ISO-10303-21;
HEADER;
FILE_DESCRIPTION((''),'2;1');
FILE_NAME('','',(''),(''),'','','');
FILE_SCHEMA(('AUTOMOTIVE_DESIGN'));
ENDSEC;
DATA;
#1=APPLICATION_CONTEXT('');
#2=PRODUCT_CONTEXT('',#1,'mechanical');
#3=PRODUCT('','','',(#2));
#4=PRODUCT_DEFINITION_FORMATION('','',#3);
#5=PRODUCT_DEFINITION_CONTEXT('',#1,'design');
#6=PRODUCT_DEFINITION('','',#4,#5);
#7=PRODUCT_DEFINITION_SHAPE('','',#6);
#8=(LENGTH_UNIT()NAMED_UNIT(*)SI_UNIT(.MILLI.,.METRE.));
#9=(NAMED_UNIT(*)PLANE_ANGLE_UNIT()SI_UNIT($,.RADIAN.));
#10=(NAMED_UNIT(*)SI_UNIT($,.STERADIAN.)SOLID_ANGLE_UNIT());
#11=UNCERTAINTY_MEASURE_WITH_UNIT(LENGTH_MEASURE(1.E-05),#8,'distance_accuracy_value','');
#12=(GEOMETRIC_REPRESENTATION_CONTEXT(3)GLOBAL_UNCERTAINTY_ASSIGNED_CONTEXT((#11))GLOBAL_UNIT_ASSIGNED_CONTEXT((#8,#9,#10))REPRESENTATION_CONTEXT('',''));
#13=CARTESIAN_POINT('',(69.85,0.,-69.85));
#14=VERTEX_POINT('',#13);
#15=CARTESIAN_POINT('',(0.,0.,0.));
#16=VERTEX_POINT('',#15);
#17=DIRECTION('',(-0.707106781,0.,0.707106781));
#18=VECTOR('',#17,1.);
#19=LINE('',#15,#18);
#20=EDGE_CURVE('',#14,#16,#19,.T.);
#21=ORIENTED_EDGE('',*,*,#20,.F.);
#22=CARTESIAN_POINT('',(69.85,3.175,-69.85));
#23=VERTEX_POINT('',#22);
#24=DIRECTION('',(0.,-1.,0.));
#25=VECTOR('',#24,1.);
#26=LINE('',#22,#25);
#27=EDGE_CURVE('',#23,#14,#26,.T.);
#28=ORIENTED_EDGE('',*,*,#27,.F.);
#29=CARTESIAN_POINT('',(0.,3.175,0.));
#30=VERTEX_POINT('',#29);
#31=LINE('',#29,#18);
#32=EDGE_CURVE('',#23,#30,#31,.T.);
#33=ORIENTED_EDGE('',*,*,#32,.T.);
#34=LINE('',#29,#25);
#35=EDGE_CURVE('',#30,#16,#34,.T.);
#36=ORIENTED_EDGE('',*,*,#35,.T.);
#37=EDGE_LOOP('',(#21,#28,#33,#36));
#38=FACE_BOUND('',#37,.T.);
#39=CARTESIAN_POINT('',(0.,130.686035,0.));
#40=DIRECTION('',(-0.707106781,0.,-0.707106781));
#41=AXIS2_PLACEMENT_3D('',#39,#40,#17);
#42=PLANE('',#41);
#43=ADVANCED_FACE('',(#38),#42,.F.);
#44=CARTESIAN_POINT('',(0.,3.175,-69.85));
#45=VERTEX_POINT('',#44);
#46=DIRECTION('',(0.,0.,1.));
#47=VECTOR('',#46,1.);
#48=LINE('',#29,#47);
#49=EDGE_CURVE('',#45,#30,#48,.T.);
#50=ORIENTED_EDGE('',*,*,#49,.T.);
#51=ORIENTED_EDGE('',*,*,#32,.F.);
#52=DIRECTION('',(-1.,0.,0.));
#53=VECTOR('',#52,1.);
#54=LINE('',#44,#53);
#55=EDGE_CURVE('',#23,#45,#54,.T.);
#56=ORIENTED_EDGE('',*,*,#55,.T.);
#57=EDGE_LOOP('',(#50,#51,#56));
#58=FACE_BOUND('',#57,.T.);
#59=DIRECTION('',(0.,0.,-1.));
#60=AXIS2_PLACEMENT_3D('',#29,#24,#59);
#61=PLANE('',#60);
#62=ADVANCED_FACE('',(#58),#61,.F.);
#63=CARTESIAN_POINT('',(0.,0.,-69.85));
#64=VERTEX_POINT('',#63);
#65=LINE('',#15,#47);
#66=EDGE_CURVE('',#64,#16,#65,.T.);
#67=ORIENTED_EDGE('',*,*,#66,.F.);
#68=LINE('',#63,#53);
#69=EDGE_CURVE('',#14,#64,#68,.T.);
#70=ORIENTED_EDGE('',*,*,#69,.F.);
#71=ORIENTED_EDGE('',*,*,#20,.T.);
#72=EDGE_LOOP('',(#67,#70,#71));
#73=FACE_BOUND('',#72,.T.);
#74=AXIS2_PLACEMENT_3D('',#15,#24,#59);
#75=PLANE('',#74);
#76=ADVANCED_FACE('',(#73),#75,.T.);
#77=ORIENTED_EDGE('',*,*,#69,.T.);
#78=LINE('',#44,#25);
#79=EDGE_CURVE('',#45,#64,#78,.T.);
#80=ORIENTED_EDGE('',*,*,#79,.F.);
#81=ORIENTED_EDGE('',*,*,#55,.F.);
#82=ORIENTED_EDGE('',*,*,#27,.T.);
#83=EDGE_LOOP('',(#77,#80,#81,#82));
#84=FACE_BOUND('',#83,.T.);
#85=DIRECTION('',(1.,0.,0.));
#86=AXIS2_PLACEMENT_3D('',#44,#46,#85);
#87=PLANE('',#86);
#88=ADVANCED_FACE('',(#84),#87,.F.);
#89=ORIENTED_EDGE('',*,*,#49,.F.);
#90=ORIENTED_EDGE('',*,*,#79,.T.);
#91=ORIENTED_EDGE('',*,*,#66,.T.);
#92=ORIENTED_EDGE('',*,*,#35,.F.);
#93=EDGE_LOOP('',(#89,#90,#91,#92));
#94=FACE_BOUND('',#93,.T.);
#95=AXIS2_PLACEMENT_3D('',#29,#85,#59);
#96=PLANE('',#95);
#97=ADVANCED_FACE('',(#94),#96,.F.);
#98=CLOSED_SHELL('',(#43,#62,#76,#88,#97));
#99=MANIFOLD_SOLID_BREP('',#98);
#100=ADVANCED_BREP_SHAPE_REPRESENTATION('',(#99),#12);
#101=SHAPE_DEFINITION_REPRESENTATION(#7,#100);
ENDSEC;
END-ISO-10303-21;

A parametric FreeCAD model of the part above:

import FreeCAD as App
import Part
import Sketcher

V = App.Vector
Q = App.Units.Quantity

doc = App.newDocument("Part")
body = doc.addObject("PartDesign::Body", "Body")

sketch1 = body.newObject("Sketcher::SketchObject", "Sketch")
sketch1.AttachmentSupport = (doc.getObject("XZ_Plane"), [""])
sketch1.MapMode = "FlatFace"
sketch1.addGeometry(Part.LineSegment(V(0, -70, 0), V(0, 0, 0)), False)
sketch1.addGeometry(Part.LineSegment(V(0, 0, 0), V(70, 0, 0)), False)
sketch1.addGeometry(Part.LineSegment(V(70, 0, 0), V(70, -70, 0)), False)
sketch1.addGeometry(Part.LineSegment(V(70, -70, 0), V(0, -70, 0)), False)
sketch1.addConstraint(Sketcher.Constraint("Coincident", 0, 2, 1, 1))
sketch1.addConstraint(Sketcher.Constraint("Coincident", 1, 2, 2, 1))
sketch1.addConstraint(Sketcher.Constraint("Coincident", 2, 2, 3, 1))
sketch1.addConstraint(Sketcher.Constraint("Coincident", 3, 2, 0, 1))
sketch1.addConstraint(Sketcher.Constraint("Vertical", 0))
sketch1.addConstraint(Sketcher.Constraint("Horizontal", 1))
sketch1.addConstraint(Sketcher.Constraint("Vertical", 2))
sketch1.addConstraint(Sketcher.Constraint("Horizontal", 3))
sketch1.addConstraint(Sketcher.Constraint("Coincident", 0, 2, -1, 1))
sketch1.addConstraint(Sketcher.Constraint("Equal", 3, 0))
sketch1.addConstraint(Sketcher.Constraint("DistanceX", 1, 1, 1, 2, Q("2.75 in")))
pad1 = body.newObject("PartDesign::Pad", "Pad")
pad1.Profile = sketch1
pad1.Length = Q("0.125 in")
pad1.Reversed = True

sketch2 = body.newObject("Sketcher::SketchObject", "Sketch001")
sketch2.AttachmentSupport = (doc.getObject("XZ_Plane"), [""])
sketch2.MapMode = "FlatFace"
sketch2.AttachmentOffset = App.Placement(V(0, 0, -0.125 * 25.4), App.Rotation())
sketch2.addGeometry(Part.LineSegment(V(217, -217, 0), V(-147, 147, 0)), False)
sketch2.addGeometry(Part.LineSegment(V(-147, 147, 0), V(147, 440, 0)), False)
sketch2.addGeometry(Part.LineSegment(V(147, 440, 0), V(510, 77, 0)), False)
sketch2.addGeometry(Part.LineSegment(V(510, 77, 0), V(217, -217, 0)), False)
sketch2.addConstraint(Sketcher.Constraint("Coincident", 0, 2, 1, 1))
sketch2.addConstraint(Sketcher.Constraint("Coincident", 1, 2, 2, 1))
sketch2.addConstraint(Sketcher.Constraint("Coincident", 2, 2, 3, 1))
sketch2.addConstraint(Sketcher.Constraint("Coincident", 3, 2, 0, 1))
sketch2.addConstraint(Sketcher.Constraint("Perpendicular", 0, 1))
sketch2.addConstraint(Sketcher.Constraint("Perpendicular", 1, 2))
sketch2.addConstraint(Sketcher.Constraint("Perpendicular", 2, 3))
sketch2.addConstraint(Sketcher.Constraint("Angle", 0, Q("135 deg")))
sketch2.addConstraint(Sketcher.Constraint("DistanceY", 2, 2, 0, 2, Q("2.75 in")))
sketch2.addConstraint(Sketcher.Constraint("Distance", 1, Q("415.131269 mm")))
sketch2.addConstraint(Sketcher.Constraint("DistanceX", 0, 2, -1, 1, Q("146.771068 mm")))
sketch2.addConstraint(Sketcher.Constraint("DistanceY", -1, 1, 0, 2, Q("146.771068 mm")))
pocket1 = body.newObject("PartDesign::Pocket", "Pocket")
pocket1.Profile = sketch2
pocket1.Type = "ThroughAll"
pocket1.Midplane = True

doc.recompute()
